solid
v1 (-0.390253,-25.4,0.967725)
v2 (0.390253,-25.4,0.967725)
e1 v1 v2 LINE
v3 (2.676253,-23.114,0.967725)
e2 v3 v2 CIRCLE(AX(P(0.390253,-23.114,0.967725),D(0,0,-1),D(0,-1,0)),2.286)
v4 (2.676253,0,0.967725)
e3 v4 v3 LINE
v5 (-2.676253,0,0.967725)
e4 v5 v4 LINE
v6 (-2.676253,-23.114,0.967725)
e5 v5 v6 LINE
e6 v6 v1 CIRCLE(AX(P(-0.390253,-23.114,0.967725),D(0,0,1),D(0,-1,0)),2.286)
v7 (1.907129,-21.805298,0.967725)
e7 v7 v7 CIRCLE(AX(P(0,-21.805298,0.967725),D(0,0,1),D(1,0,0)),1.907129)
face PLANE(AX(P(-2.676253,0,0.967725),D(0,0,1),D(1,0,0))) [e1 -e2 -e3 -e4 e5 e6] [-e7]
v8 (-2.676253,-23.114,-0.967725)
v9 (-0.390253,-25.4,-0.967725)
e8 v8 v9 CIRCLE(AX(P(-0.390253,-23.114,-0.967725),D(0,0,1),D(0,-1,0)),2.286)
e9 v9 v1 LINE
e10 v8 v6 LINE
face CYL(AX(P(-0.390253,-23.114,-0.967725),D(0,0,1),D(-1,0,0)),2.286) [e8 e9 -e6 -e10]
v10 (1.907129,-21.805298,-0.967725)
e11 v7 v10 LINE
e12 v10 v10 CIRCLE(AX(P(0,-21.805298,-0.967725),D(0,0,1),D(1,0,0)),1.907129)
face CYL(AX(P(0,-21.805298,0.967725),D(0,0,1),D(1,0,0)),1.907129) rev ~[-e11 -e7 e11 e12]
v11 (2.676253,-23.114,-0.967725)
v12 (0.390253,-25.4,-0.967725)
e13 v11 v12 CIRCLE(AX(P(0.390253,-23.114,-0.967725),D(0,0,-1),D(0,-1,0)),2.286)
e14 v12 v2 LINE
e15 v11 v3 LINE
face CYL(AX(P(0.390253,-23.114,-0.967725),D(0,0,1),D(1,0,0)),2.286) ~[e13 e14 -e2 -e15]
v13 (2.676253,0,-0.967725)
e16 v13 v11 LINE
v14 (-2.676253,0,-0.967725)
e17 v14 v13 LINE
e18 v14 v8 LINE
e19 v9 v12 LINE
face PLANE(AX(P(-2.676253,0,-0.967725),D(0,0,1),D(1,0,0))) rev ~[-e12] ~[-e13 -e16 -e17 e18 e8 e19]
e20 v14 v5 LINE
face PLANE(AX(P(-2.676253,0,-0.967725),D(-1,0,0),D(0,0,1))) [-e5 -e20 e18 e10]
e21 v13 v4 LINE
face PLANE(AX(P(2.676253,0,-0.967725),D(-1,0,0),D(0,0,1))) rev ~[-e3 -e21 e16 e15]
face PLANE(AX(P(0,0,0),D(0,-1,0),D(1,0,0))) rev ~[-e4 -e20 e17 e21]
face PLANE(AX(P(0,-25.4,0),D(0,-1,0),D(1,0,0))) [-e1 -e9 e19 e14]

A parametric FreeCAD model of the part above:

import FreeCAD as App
import Part
import Sketcher

V = App.Vector
Q = App.Units.Quantity


def edges_at(feature, points):
    """Names of the edges that pass closest to the given points."""
    edges = feature.Shape.Edges
    near = lambda p: min(range(len(edges)), key=lambda i: edges[i].distToShape(Part.Vertex(*p))[0])
    return sorted({f"Edge{near(p) + 1}" for p in points})

doc = App.newDocument("Part")
body = doc.addObject("PartDesign::Body", "Body")

# Sketch on XZ plane
sketch1 = body.newObject("Sketcher::SketchObject", "Sketch")
sketch1.AttachmentSupport = (doc.getObject("XZ_Plane"), [""])
sketch1.MapMode = "FlatFace"
sketch1.addGeometry([
    Part.LineSegment(V(-2.676253, 0.967725, 0), V(-2.676253, -0.967725, 0)),
    Part.LineSegment(V(-2.676253, -0.967725, 0), V(2.676253, -0.967725, 0)),
    Part.LineSegment(V(2.676253, -0.967725, 0), V(2.676253, 0.967725, 0)),
    Part.LineSegment(V(2.676253, 0.967725, 0), V(-2.676253, 0.967725, 0)),
], False)
sketch1.addConstraint([
    Sketcher.Constraint("Coincident", 0, 2, 1, 1),
    Sketcher.Constraint("Coincident", 1, 2, 2, 1),
    Sketcher.Constraint("Coincident", 2, 2, 3, 1),
    Sketcher.Constraint("Coincident", 3, 2, 0, 1),
    Sketcher.Constraint("Vertical", 0),
    Sketcher.Constraint("Horizontal", 1),
    Sketcher.Constraint("Vertical", 2),
    Sketcher.Constraint("Horizontal", 3),
    Sketcher.Constraint("Symmetric", 0, 2, 2, 2, -1, 1),
    Sketcher.Constraint("DistanceY", 0, 2, 0, 1, Q("1.93545 mm")),
    Sketcher.Constraint("DistanceX", 1, 1, 1, 2, Q("5.352506 mm")),
])
pad1 = body.newObject("PartDesign::Pad", "Pad")
pad1.Profile = sketch1
pad1.Length = Q("1 in")
doc.recompute()

fillet = body.newObject("PartDesign::Fillet", "Fillet")
fillet.Base = (pad1, edges_at(pad1, [(-2.676, -25.4, 0), (2.676, -25.4, 0)]))
fillet.Radius = Q("0.09 in")

# Sketch on XY plane
sketch2 = body.newObject("Sketcher::SketchObject", "Sketch001")
sketch2.AttachmentSupport = (doc.getObject("XY_Plane"), [""])
sketch2.MapMode = "FlatFace"
sketch2.AttachmentOffset = App.Placement(V(0, 0, 0.967725), App.Rotation())
sketch2.addGeometry(Part.Circle(V(0, -21.805298, 0), V(0, 0, 1), 1.907129), False)
sketch2.addConstraint([
    Sketcher.Constraint("PointOnObject", 0, 3, -2),
    Sketcher.Constraint("Diameter", 0, Q("3.814258 mm")),
    Sketcher.Constraint("DistanceY", 0, 3, -1, 1, Q("21.805298 mm")),
])
pocket1 = body.newObject("PartDesign::Pocket", "Pocket")
pocket1.Profile = sketch2
pocket1.Length = Q("0.0944 in")

doc.recompute()
